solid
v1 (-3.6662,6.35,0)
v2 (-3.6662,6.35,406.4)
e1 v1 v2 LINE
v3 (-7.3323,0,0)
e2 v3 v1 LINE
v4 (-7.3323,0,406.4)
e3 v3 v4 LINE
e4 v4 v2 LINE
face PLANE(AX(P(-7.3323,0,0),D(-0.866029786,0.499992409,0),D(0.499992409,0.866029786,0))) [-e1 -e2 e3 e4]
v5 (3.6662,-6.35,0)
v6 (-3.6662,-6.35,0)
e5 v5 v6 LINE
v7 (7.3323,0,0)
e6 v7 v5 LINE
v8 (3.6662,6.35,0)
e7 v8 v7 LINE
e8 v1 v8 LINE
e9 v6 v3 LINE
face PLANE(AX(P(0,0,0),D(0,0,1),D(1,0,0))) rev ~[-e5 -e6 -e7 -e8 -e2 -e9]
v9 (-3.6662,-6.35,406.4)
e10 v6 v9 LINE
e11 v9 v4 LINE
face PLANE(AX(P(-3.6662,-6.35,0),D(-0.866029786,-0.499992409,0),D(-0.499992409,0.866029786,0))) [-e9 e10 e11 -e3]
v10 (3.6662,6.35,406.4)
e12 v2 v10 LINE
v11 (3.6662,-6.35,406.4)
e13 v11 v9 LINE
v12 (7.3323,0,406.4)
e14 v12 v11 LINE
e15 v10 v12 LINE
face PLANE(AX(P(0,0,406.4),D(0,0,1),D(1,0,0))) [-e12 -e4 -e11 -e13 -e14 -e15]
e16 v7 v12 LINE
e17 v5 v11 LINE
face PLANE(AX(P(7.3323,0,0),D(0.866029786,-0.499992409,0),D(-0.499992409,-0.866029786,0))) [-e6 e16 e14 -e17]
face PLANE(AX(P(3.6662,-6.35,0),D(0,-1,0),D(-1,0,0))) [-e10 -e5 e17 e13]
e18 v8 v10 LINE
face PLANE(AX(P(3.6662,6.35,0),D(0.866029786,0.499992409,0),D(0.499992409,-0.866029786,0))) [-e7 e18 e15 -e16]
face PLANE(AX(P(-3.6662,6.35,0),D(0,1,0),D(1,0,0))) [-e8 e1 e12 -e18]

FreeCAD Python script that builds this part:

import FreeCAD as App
import Part
import Sketcher
Q = App.Units.Quantity


def add_polygon(sketch, points):
    """Adds a closed chain of lines whose ends are joined by coincident constraints."""
    first, n = sketch.GeometryCount, len(points)
    for a, b in zip(points, points[1:] + points[:1]):
        sketch.addGeometry(Part.LineSegment(App.Vector(*a, 0), App.Vector(*b, 0)), False)
    for i in range(n):
        sketch.addConstraint(Sketcher.Constraint("Coincident", first + i, 2, first + (i + 1) % n, 1))

doc = App.newDocument("Part")
body = doc.addObject("PartDesign::Body", "Body")

sketch1 = body.newObject("Sketcher::SketchObject", "Sketch")
sketch1.AttachmentSupport = (doc.getObject("XY_Plane"), [""])
sketch1.MapMode = "FlatFace"
add_polygon(sketch1, [(7.3323, 0), (3.6662, 6.35), (-3.6662, 6.35), (-7.3323, 0), (-3.6662, -6.35), (3.6662, -6.35)])
sketch1.addConstraint([
    Sketcher.Constraint("Horizontal", 1),
    Sketcher.Constraint("Horizontal", 4),
    Sketcher.Constraint("Symmetric", 0, 2, 3, 2, -1, 1),
    Sketcher.Constraint("Symmetric", 2, 2, 5, 2, -1, 1),
    Sketcher.Constraint("PointOnObject", 2, 2, -1),
    Sketcher.Constraint("Parallel", 2, 5),
    Sketcher.Constraint("Vertical", 1, 2, 3, 2),
    Sketcher.Constraint("DistanceY", 3, 2, 1, 2, Q("0.5 in")),
    Sketcher.Constraint("Angle", 0, Q("119.9995 deg")),
    Sketcher.Constraint("DistanceX", 2, 2, 0, 2, Q("0.433 in")),
])
pad1 = body.newObject("PartDesign::Pad", "Pad")
pad1.Profile = sketch1
pad1.Length = Q("16 in")

doc.recompute()
